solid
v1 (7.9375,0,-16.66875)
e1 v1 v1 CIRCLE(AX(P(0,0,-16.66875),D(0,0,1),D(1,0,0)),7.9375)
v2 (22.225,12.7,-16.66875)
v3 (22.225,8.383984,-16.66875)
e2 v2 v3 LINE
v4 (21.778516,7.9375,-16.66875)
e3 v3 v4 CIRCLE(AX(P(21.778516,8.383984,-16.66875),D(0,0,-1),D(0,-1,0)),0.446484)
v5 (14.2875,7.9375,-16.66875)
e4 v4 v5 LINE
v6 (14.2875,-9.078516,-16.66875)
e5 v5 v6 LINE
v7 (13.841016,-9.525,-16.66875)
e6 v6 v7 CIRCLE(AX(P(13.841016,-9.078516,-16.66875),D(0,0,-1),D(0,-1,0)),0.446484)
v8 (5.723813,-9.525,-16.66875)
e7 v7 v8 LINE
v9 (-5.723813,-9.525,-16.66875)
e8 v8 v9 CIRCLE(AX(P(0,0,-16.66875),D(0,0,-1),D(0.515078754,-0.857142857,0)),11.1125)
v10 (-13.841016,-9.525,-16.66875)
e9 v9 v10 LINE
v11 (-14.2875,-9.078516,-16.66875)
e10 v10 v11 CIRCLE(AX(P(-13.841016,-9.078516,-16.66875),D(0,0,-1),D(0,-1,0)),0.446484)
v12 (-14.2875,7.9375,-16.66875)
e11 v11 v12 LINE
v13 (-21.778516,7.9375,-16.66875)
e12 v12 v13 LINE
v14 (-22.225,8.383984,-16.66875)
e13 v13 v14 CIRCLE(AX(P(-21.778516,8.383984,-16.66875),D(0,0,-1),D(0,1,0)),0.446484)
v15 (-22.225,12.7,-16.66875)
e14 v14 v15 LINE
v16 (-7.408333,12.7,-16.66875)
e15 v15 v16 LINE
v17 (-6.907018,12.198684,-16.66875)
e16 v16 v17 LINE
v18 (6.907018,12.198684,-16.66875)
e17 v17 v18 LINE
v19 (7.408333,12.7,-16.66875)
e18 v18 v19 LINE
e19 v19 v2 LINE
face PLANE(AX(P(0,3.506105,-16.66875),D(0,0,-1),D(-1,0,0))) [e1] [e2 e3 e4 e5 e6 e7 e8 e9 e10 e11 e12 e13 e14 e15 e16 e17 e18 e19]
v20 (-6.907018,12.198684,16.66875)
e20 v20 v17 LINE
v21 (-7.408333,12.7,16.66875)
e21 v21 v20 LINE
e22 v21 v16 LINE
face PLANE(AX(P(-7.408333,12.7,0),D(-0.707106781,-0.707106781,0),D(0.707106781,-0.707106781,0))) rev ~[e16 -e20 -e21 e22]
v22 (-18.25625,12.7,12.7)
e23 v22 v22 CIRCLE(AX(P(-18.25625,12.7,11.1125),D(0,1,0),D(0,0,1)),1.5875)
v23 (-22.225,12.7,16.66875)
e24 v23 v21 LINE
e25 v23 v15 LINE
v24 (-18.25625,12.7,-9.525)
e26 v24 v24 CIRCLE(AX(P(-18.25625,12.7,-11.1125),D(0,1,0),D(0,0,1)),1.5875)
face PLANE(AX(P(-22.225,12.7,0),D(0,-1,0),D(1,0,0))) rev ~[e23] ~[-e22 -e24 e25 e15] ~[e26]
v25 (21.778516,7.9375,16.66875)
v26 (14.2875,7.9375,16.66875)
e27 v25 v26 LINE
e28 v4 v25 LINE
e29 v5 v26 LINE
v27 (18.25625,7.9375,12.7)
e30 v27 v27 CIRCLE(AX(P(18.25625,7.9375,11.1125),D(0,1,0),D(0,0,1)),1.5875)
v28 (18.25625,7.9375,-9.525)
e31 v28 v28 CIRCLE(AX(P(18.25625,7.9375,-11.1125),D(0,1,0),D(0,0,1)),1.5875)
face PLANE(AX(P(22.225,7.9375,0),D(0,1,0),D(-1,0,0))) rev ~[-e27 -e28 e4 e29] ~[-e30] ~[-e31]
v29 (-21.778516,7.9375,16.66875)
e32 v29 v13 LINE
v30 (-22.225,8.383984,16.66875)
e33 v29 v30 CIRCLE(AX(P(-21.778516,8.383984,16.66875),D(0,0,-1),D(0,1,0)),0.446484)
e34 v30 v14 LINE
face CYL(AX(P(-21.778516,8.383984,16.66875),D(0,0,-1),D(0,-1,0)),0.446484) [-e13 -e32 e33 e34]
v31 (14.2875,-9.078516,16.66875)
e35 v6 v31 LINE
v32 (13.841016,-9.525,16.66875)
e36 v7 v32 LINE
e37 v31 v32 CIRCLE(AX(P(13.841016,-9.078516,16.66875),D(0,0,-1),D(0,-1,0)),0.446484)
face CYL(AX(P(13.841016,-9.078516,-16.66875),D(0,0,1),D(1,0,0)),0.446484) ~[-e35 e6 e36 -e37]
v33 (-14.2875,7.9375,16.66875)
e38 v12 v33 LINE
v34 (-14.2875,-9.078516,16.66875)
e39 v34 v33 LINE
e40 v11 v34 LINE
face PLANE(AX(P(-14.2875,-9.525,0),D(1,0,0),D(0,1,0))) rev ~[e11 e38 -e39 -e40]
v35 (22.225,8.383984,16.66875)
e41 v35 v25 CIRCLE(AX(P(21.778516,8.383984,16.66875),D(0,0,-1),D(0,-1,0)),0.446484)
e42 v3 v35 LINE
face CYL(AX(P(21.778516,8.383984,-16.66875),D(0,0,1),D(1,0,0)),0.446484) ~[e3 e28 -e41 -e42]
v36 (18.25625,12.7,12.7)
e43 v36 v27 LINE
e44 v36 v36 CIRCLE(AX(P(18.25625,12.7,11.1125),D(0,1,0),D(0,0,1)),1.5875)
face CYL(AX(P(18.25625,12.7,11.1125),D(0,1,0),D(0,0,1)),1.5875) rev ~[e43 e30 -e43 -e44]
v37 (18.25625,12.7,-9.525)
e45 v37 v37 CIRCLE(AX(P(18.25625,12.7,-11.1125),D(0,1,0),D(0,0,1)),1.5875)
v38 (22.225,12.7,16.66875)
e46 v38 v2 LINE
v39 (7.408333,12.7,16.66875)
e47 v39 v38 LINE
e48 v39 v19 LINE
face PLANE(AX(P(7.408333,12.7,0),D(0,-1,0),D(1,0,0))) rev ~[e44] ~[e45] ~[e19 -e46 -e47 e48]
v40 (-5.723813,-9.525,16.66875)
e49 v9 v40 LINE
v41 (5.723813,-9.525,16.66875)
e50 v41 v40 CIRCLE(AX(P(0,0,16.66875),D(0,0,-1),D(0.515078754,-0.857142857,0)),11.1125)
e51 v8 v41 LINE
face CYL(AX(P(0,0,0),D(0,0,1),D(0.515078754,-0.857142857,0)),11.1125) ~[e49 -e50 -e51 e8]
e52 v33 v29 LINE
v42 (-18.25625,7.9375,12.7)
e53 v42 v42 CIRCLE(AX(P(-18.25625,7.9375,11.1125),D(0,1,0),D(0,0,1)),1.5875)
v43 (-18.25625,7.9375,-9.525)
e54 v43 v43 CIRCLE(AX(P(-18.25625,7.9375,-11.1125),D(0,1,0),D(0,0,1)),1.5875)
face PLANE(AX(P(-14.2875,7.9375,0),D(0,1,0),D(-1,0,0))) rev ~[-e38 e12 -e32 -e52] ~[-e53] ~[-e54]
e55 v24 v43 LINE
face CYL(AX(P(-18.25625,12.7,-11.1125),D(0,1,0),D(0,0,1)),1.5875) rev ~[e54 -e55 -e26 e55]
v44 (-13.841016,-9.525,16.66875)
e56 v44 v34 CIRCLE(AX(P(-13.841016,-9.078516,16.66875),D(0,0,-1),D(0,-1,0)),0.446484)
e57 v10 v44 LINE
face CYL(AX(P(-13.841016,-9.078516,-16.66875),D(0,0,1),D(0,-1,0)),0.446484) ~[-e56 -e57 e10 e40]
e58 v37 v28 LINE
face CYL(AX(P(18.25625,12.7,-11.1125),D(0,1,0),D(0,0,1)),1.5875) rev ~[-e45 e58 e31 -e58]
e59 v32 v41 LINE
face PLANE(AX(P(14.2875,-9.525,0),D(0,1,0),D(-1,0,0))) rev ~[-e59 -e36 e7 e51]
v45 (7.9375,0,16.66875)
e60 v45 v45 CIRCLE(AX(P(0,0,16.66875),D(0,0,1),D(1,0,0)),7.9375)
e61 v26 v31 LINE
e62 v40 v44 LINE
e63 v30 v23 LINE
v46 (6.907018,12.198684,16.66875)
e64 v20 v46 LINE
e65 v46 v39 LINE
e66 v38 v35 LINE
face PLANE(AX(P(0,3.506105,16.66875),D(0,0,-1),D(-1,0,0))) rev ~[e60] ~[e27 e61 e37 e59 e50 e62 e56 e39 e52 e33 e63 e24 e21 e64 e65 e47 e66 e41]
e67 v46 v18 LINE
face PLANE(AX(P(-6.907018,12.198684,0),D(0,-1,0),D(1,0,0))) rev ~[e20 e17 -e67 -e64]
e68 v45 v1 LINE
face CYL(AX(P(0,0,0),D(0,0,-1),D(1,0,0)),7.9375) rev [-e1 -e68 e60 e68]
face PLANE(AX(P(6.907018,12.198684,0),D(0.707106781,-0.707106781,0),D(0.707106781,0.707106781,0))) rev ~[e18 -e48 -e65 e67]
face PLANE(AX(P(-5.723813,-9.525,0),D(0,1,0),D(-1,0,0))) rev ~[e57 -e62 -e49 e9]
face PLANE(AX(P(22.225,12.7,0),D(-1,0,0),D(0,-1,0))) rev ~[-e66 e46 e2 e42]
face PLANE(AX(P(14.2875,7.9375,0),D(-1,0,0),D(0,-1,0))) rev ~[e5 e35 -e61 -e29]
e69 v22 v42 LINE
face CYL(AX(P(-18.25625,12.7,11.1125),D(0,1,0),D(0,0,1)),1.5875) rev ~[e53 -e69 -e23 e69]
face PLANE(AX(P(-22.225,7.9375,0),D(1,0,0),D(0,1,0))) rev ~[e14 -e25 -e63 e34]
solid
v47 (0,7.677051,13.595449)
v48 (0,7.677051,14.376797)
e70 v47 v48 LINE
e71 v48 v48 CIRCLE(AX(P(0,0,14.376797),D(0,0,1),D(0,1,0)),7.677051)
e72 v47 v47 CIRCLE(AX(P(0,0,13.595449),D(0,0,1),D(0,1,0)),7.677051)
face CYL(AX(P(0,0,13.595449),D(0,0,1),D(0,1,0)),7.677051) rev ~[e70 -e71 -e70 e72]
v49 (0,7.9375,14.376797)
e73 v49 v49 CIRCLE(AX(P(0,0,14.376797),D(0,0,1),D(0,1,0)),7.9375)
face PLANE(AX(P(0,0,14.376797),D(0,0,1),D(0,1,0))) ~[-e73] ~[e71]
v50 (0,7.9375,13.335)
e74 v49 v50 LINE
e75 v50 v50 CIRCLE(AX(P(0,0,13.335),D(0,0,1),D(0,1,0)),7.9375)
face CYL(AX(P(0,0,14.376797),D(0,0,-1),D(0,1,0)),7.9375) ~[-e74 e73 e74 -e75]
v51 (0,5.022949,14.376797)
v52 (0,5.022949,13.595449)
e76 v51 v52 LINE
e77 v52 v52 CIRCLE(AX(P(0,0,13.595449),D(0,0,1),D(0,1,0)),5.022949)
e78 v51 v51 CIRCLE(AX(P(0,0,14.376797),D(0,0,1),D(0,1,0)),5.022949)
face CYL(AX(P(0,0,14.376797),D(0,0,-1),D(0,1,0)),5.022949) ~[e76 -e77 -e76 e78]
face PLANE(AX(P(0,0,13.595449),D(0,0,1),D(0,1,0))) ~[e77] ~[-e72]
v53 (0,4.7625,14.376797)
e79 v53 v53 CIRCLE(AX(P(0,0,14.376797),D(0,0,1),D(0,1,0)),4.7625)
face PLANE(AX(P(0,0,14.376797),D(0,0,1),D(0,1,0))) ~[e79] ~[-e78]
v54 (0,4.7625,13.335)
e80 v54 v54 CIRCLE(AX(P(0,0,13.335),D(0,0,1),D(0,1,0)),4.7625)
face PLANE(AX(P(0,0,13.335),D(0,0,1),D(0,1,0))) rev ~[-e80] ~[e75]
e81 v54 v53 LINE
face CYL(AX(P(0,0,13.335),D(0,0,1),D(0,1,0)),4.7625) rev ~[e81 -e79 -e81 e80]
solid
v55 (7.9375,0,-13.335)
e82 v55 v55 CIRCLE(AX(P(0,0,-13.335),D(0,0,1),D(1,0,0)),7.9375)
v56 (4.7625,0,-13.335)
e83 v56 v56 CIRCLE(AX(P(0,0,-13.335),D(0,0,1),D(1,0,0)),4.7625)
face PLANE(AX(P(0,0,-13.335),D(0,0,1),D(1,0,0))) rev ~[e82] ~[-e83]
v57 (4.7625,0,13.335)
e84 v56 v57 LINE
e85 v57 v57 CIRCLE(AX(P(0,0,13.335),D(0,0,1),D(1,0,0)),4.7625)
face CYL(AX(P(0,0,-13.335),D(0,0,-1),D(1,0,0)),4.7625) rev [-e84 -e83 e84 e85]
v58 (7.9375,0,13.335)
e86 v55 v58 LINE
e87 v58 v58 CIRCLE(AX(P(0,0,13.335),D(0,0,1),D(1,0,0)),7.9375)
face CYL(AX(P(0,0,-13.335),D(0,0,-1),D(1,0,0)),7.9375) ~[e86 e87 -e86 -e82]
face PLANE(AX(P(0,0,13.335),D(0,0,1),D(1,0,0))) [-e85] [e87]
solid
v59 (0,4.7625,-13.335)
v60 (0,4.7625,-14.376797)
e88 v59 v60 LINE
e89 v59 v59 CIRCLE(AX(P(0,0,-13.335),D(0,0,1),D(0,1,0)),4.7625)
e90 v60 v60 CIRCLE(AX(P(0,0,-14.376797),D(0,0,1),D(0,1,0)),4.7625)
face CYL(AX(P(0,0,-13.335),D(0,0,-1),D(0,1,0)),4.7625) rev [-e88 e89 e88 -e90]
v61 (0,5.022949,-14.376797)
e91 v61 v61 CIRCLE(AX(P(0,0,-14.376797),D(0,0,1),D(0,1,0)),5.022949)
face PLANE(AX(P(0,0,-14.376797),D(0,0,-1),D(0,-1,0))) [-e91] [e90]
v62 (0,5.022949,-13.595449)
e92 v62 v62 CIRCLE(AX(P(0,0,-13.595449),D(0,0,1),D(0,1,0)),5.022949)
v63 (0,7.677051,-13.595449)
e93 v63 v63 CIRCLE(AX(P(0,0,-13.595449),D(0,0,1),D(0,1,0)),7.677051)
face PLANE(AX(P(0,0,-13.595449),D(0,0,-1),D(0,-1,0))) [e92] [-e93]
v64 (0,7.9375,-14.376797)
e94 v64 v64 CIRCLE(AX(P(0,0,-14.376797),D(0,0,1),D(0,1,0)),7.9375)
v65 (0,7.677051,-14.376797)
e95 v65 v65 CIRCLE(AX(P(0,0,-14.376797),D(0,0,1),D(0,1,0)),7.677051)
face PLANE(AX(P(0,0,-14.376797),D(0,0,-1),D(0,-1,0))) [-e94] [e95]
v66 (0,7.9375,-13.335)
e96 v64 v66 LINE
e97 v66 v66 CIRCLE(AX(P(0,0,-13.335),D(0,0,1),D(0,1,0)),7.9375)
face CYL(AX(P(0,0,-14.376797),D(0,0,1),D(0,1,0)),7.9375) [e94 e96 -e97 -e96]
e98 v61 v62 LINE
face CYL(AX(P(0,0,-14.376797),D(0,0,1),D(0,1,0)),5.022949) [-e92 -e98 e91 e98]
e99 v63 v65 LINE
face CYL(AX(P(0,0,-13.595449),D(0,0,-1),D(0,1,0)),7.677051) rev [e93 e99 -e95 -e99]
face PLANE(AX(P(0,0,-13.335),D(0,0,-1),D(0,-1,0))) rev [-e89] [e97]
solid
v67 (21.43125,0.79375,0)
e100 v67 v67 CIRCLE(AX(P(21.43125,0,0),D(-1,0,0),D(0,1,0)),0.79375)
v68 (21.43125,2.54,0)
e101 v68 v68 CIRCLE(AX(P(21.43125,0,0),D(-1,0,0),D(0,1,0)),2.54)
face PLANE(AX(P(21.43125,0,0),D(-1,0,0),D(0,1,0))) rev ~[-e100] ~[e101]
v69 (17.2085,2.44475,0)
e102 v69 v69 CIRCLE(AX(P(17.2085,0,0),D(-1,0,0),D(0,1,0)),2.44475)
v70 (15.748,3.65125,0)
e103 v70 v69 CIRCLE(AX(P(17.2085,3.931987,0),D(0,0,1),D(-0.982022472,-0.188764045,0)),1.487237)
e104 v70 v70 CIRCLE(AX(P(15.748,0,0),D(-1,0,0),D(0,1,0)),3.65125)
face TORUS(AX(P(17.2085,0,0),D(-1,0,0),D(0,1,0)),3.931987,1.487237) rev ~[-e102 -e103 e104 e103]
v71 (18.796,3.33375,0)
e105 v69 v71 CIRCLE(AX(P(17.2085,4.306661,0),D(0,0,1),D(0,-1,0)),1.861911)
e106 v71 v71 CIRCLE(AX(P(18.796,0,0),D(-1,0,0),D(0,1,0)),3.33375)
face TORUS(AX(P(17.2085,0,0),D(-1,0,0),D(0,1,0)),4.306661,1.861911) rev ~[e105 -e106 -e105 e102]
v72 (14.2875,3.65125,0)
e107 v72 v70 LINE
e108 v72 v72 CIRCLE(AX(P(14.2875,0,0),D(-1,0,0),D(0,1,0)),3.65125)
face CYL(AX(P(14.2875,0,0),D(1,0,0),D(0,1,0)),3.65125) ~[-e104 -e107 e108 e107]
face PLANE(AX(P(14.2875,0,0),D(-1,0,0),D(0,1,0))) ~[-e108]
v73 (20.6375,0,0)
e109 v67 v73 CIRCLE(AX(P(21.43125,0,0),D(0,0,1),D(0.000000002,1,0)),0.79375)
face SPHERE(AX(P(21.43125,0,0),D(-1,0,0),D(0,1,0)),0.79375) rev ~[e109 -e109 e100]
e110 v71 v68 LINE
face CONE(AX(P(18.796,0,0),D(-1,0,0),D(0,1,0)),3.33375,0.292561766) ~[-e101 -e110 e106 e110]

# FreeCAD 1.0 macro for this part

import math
import FreeCAD as App
import Part
import Sketcher
Q = App.Units.Quantity


def edges_at(feature, points):
    """Names of the edges that pass closest to the given points."""
    edges = feature.Shape.Edges
    near = lambda p: min(range(len(edges)), key=lambda i: edges[i].distToShape(Part.Vertex(*p))[0])
    return sorted({f"Edge{near(p) + 1}" for p in points})

doc = App.newDocument("Part")
body = doc.addObject("PartDesign::Body", "Body")

sketch1 = doc.addObject("Sketcher::SketchObject", "Sketch")
body.addObject(sketch1)
sketch1.AttachmentSupport = (doc.XY_Plane, [""])
sketch1.MapMode = "FlatFace"
sketch1.addGeometry([
    Part.LineSegment(App.Vector(-22.2, 7.9, 0), App.Vector(-14.3, 7.9, 0)),
    Part.LineSegment(App.Vector(-14.3, 7.9, 0), App.Vector(-14.3, -9.5, 0)),
    Part.LineSegment(App.Vector(-14.3, -9.5, 0), App.Vector(-5.7, -9.5, 0)),
    Part.ArcOfCircle(Part.Circle(App.Vector(0, 0, 0), App.Vector(0, 0, 1), 11.1), math.radians(-121), math.radians(-59)),
    Part.LineSegment(App.Vector(5.7, -9.5, 0), App.Vector(14.3, -9.5, 0)),
    Part.LineSegment(App.Vector(14.3, -9.5, 0), App.Vector(14.3, 7.9, 0)),
    Part.LineSegment(App.Vector(14.3, 7.9, 0), App.Vector(22.2, 7.9, 0)),
    Part.LineSegment(App.Vector(22.2, 7.9, 0), App.Vector(22.2, 12.7, 0)),
    Part.LineSegment(App.Vector(22.2, 12.7, 0), App.Vector(7.4, 12.7, 0)),
    Part.LineSegment(App.Vector(7.4, 12.7, 0), App.Vector(6.9, 12.2, 0)),
    Part.LineSegment(App.Vector(6.9, 12.2, 0), App.Vector(-6.9, 12.2, 0)),
    Part.LineSegment(App.Vector(-6.9, 12.2, 0), App.Vector(-7.4, 12.7, 0)),
    Part.LineSegment(App.Vector(-7.4, 12.7, 0), App.Vector(-22.2, 12.7, 0)),
    Part.LineSegment(App.Vector(-22.2, 12.7, 0), App.Vector(-22.2, 7.9, 0)),
    Part.Circle(App.Vector(0, 0, 0), App.Vector(0, 0, 1), 7.9),
], False)
sketch1.addConstraint([
    Sketcher.Constraint("Coincident", 0, 2, 1, 1),
    Sketcher.Constraint("Coincident", 1, 2, 2, 1),
    Sketcher.Constraint("Coincident", 2, 2, 3, 1),
    Sketcher.Constraint("Coincident", 3, 2, 4, 1),
    Sketcher.Constraint("Coincident", 4, 2, 5, 1),
    Sketcher.Constraint("Coincident", 5, 2, 6, 1),
    Sketcher.Constraint("Coincident", 6, 2, 7, 1),
    Sketcher.Constraint("Coincident", 7, 2, 8, 1),
    Sketcher.Constraint("Coincident", 8, 2, 9, 1),
    Sketcher.Constraint("Coincident", 9, 2, 10, 1),
    Sketcher.Constraint("Coincident", 10, 2, 11, 1),
    Sketcher.Constraint("Coincident", 11, 2, 12, 1),
    Sketcher.Constraint("Coincident", 12, 2, 13, 1),
    Sketcher.Constraint("Coincident", 13, 2, 0, 1),
    Sketcher.Constraint("Horizontal", 0),
    Sketcher.Constraint("Vertical", 1),
    Sketcher.Constraint("Horizontal", 2),
    Sketcher.Constraint("Horizontal", 4),
    Sketcher.Constraint("Vertical", 5),
    Sketcher.Constraint("Horizontal", 6),
    Sketcher.Constraint("Vertical", 7),
    Sketcher.Constraint("Horizontal", 8),
    Sketcher.Constraint("Horizontal", 10),
    Sketcher.Constraint("Horizontal", 12),
    Sketcher.Constraint("Vertical", 13),
    Sketcher.Constraint("Coincident", 3, 3, -1, 1),
    Sketcher.Constraint("Coincident", 14, 3, -1, 1),
    Sketcher.Constraint("Symmetric", 1, 2, 4, 2, -2),
    Sketcher.Constraint("Symmetric", 8, 2, 11, 2, -2),
    Sketcher.Constraint("Symmetric", 6, 2, 13, 2, -2),
    Sketcher.Constraint("Perpendicular", 9, 11),
    Sketcher.Constraint("Equal", 9, 11),
    Sketcher.Constraint("Diameter", 14, Q("0.625 in")),
    Sketcher.Constraint("Radius", 3, Q("0.4375 in")),
    Sketcher.Constraint("DistanceY", -1, 1, 7, 2, Q("0.5 in")),
    Sketcher.Constraint("DistanceX", 0, 1, 0, 2, Q("0.3125 in")),
    Sketcher.Constraint("DistanceY", 1, 2, 1, 1, Q("0.6875 in")),
    Sketcher.Constraint("DistanceY", 7, 1, 7, 2, Q("0.1875 in")),
    Sketcher.Constraint("DistanceX", 0, 2, -1, 1, Q("0.5625 in")),
    Sketcher.Constraint("DistanceX", 8, 2, 8, 1, Q("14.816667 mm")),
    Sketcher.Constraint("DistanceX", 10, 2, 10, 1, Q("13.814035 mm")),
])
pad1 = doc.addObject("PartDesign::Pad", "Pad")
body.addObject(pad1)
pad1.Profile = sketch1
pad1.Length = Q("1.3125 in")
pad1.Midplane = True
doc.recompute()

fillet = doc.addObject("PartDesign::Fillet", "Fillet")
body.addObject(fillet)
fillet.Base = (pad1, edges_at(pad1, [
    (14.287, -9.525, 0),
    (-14.287, -9.525, 0),
    (-22.225, 7.938, 0),
    (22.225, 7.938, 0),
]))
fillet.Radius = 0.446484

sketch2 = doc.addObject("Sketcher::SketchObject", "Sketch001")
body.addObject(sketch2)
sketch2.AttachmentSupport = (doc.XZ_Plane, [""])
sketch2.MapMode = "FlatFace"
sketch2.AttachmentOffset = App.Placement(App.Vector(0, 0, -0.5 * 25.4), App.Rotation())
sketch2.addGeometry([
    Part.Circle(App.Vector(-18.3, -11.1, 0), App.Vector(0, 0, 1), 1.6),
    Part.Circle(App.Vector(18.3, -11.1, 0), App.Vector(0, 0, 1), 1.6),
    Part.Circle(App.Vector(18.3, 11.1, 0), App.Vector(0, 0, 1), 1.6),
    Part.Circle(App.Vector(-18.3, 11.1, 0), App.Vector(0, 0, 1), 1.6),
], False)
sketch2.addConstraint([
    Sketcher.Constraint("Equal", 0, 1),
    Sketcher.Constraint("Equal", 1, 2),
    Sketcher.Constraint("Equal", 2, 3),
    Sketcher.Constraint("Symmetric", 0, 3, 2, 3, -1, 1),
    Sketcher.Constraint("Symmetric", 1, 3, 3, 3, -1, 1),
    Sketcher.Constraint("Symmetric", 0, 3, 1, 3, -2),
    Sketcher.Constraint("Diameter", 0, Q("0.125 in")),
    Sketcher.Constraint("DistanceX", 0, 3, -1, 1, Q("0.71875 in")),
    Sketcher.Constraint("DistanceY", 0, 3, -1, 1, Q("0.4375 in")),
])
pocket1 = doc.addObject("PartDesign::Pocket", "Pocket")
body.addObject(pocket1)
pocket1.Profile = sketch2
pocket1.Length = Q("0.1875 in")
pocket1.Reversed = True
body2 = doc.addObject("PartDesign::Body", "Body001")

sketch3 = doc.addObject("Sketcher::SketchObject", "Sketch002")
body2.addObject(sketch3)
sketch3.AttachmentSupport = (doc.getObject("XY_Plane001"), [""])
sketch3.MapMode = "FlatFace"
sketch3.addGeometry([
    Part.Circle(App.Vector(0, 0, 0), App.Vector(0, 0, 1), 7.9),
    Part.Circle(App.Vector(0, 0, 0), App.Vector(0, 0, 1), 4.8),
], False)
sketch3.addConstraint([
    Sketcher.Constraint("Coincident", 0, 3, -1, 1),
    Sketcher.Constraint("Coincident", 1, 3, -1, 1),
    Sketcher.Constraint("Diameter", 0, Q("0.625 in")),
    Sketcher.Constraint("Diameter", 1, Q("0.375 in")),
])
pad2 = doc.addObject("PartDesign::Pad", "Pad001")
body2.addObject(pad2)
pad2.Profile = sketch3
pad2.Type = "TwoLengths"
pad2.Length = Q("0.525 in")
pad2.Length2 = Q("0.525 in")
body3 = doc.addObject("PartDesign::Body", "Body002")

sketch4 = doc.addObject("Sketcher::SketchObject", "Sketch003")
body3.addObject(sketch4)
sketch4.AttachmentSupport = (doc.getObject("YZ_Plane002"), [""])
sketch4.MapMode = "FlatFace"
sketch4.addGeometry([
    Part.LineSegment(App.Vector(4.76, 14.38, 0), App.Vector(4.76, 13.34, 0)),
    Part.LineSegment(App.Vector(4.76, 13.34, 0), App.Vector(7.94, 13.34, 0)),
    Part.LineSegment(App.Vector(7.94, 13.34, 0), App.Vector(7.94, 14.38, 0)),
    Part.LineSegment(App.Vector(7.94, 14.38, 0), App.Vector(7.68, 14.38, 0)),
    Part.LineSegment(App.Vector(7.68, 14.38, 0), App.Vector(7.68, 13.6, 0)),
    Part.LineSegment(App.Vector(7.68, 13.6, 0), App.Vector(5.02, 13.6, 0)),
    Part.LineSegment(App.Vector(5.02, 13.6, 0), App.Vector(5.02, 14.38, 0)),
    Part.LineSegment(App.Vector(5.02, 14.38, 0), App.Vector(4.76, 14.38, 0)),
], False)
sketch4.addConstraint([
    Sketcher.Constraint("Coincident", 0, 2, 1, 1),
    Sketcher.Constraint("Coincident", 1, 2, 2, 1),
    Sketcher.Constraint("Coincident", 2, 2, 3, 1),
    Sketcher.Constraint("Coincident", 3, 2, 4, 1),
    Sketcher.Constraint("Coincident", 4, 2, 5, 1),
    Sketcher.Constraint("Coincident", 5, 2, 6, 1),
    Sketcher.Constraint("Coincident", 6, 2, 7, 1),
    Sketcher.Constraint("Coincident", 7, 2, 0, 1),
    Sketcher.Constraint("Vertical", 0),
    Sketcher.Constraint("Horizontal", 1),
    Sketcher.Constraint("Vertical", 2),
    Sketcher.Constraint("Horizontal", 3),
    Sketcher.Constraint("Vertical", 4),
    Sketcher.Constraint("Horizontal", 5),
    Sketcher.Constraint("Vertical", 6),
    Sketcher.Constraint("Horizontal", 7),
    Sketcher.Constraint("Horizontal", 3, 2, 6, 2),
    Sketcher.Constraint("Equal", 3, 7),
    Sketcher.Constraint("DistanceX", 1, 1, 1, 2, Q("0.125 in")),
    Sketcher.Constraint("DistanceX", -1, 1, 0, 2, Q("0.1875 in")),
    Sketcher.Constraint("DistanceY", -1, 1, 0, 2, Q("0.525 in")),
    Sketcher.Constraint("DistanceX", 5, 2, 5, 1, Q("2.654102 mm")),
    Sketcher.Constraint("DistanceY", 0, 2, 0, 1, Q("1.041797 mm")),
    Sketcher.Constraint("DistanceY", 4, 2, 4, 1, Q("0.781348 mm")),
])
revolution = doc.addObject("PartDesign::Revolution", "Revolution")
body3.addObject(revolution)
revolution.Profile = sketch4
revolution.ReferenceAxis = (sketch4, ["V_Axis"])
revolution.Angle = 360
body4 = doc.addObject("PartDesign::Body", "Body003")

sketch5 = doc.addObject("Sketcher::SketchObject", "Sketch004")
body4.addObject(sketch5)
sketch5.AttachmentSupport = (doc.getObject("XY_Plane003"), [""])
sketch5.MapMode = "FlatFace"
sketch5.addGeometry([
    Part.LineSegment(App.Vector(14.3, 3.7, 0), App.Vector(14.3, 0, 0)),
    Part.LineSegment(App.Vector(14.3, 0, 0), App.Vector(20.6, 0, 0)),
    Part.ArcOfCircle(Part.Circle(App.Vector(21.4, 0, 0), App.Vector(0, 0, 1), 0.8), math.radians(90), math.radians(180)),
    Part.LineSegment(App.Vector(21.4, 0.8, 0), App.Vector(21.4, 2.5, 0)),
    Part.LineSegment(App.Vector(21.4, 2.5, 0), App.Vector(18.8, 3.3, 0)),
    Part.ArcOfCircle(Part.Circle(App.Vector(17.2, 4.3, 0), App.Vector(0, 0, 1), 1.9), math.radians(-90), math.radians(-32)),
    Part.ArcOfCircle(Part.Circle(App.Vector(17.2, 3.9, 0), App.Vector(0, 0, 1), 1.5), math.radians(-169), math.radians(-90)),
    Part.LineSegment(App.Vector(15.7, 3.7, 0), App.Vector(14.3, 3.7, 0)),
], False)
sketch5.addConstraint([
    Sketcher.Constraint("Coincident", 0, 2, 1, 1),
    Sketcher.Constraint("Coincident", 1, 2, 2, 2),
    Sketcher.Constraint("Coincident", 2, 1, 3, 1),
    Sketcher.Constraint("Coincident", 3, 2, 4, 1),
    Sketcher.Constraint("Coincident", 4, 2, 5, 2),
    Sketcher.Constraint("Tangent", 5, 1, 6, 2),
    Sketcher.Constraint("Coincident", 6, 1, 7, 1),
    Sketcher.Constraint("Coincident", 7, 2, 0, 1),
    Sketcher.Constraint("Vertical", 0),
    Sketcher.Constraint("Horizontal", 1),
    Sketcher.Constraint("Vertical", 3),
    Sketcher.Constraint("Horizontal", 7),
    Sketcher.Constraint("PointOnObject", 2, 3, -1),
    Sketcher.Constraint("PointOnObject", 0, 2, -1),
    Sketcher.Constraint("Vertical", 5, 3, 6, 3),
    Sketcher.Constraint("Radius", 2, Q("0.03125 in")),
    Sketcher.Constraint("DistanceX", 1, 1, 1, 2, Q("0.25 in")),
    Sketcher.Constraint("DistanceY", -1, 1, 3, 2, Q("0.1 in")),
    Sketcher.Constraint("DistanceY", 2, 1, 4, 2, Q("0.1 in")),
    Sketcher.Constraint("DistanceX", -1, 1, 4, 2, Q("0.74 in")),
    Sketcher.Constraint("DistanceX", -1, 1, 6, 1, Q("0.62 in")),
    Sketcher.Constraint("DistanceX", 7, 2, 7, 1, Q("0.0575 in")),
    Sketcher.Constraint("DistanceX", -1, 1, 2, 1, Q("0.84375 in")),
    Sketcher.Constraint("Radius", 5, Q("1.861911 mm")),
    Sketcher.Constraint("DistanceX", 0, 2, 6, 3, Q("0.115 in")),
    Sketcher.Constraint("Radius", 6, Q("1.487237 mm")),
])
revolution2 = doc.addObject("PartDesign::Revolution", "Revolution001")
body4.addObject(revolution2)
revolution2.Profile = sketch5
revolution2.ReferenceAxis = (sketch5, ["H_Axis"])
revolution2.Angle = 360
body5 = doc.addObject("PartDesign::Body", "Body004")
doc.recompute()

mirroring = doc.addObject("Part::Mirroring", "Mirroring")
mirroring.Source = body3
mirroring.Base = App.Vector(0, 0, 0)
mirroring.Normal = App.Vector(0, 0, 1)
body5.BaseFeature = mirroring
doc.recompute()
mirroring.Visibility = False

doc.recompute()
